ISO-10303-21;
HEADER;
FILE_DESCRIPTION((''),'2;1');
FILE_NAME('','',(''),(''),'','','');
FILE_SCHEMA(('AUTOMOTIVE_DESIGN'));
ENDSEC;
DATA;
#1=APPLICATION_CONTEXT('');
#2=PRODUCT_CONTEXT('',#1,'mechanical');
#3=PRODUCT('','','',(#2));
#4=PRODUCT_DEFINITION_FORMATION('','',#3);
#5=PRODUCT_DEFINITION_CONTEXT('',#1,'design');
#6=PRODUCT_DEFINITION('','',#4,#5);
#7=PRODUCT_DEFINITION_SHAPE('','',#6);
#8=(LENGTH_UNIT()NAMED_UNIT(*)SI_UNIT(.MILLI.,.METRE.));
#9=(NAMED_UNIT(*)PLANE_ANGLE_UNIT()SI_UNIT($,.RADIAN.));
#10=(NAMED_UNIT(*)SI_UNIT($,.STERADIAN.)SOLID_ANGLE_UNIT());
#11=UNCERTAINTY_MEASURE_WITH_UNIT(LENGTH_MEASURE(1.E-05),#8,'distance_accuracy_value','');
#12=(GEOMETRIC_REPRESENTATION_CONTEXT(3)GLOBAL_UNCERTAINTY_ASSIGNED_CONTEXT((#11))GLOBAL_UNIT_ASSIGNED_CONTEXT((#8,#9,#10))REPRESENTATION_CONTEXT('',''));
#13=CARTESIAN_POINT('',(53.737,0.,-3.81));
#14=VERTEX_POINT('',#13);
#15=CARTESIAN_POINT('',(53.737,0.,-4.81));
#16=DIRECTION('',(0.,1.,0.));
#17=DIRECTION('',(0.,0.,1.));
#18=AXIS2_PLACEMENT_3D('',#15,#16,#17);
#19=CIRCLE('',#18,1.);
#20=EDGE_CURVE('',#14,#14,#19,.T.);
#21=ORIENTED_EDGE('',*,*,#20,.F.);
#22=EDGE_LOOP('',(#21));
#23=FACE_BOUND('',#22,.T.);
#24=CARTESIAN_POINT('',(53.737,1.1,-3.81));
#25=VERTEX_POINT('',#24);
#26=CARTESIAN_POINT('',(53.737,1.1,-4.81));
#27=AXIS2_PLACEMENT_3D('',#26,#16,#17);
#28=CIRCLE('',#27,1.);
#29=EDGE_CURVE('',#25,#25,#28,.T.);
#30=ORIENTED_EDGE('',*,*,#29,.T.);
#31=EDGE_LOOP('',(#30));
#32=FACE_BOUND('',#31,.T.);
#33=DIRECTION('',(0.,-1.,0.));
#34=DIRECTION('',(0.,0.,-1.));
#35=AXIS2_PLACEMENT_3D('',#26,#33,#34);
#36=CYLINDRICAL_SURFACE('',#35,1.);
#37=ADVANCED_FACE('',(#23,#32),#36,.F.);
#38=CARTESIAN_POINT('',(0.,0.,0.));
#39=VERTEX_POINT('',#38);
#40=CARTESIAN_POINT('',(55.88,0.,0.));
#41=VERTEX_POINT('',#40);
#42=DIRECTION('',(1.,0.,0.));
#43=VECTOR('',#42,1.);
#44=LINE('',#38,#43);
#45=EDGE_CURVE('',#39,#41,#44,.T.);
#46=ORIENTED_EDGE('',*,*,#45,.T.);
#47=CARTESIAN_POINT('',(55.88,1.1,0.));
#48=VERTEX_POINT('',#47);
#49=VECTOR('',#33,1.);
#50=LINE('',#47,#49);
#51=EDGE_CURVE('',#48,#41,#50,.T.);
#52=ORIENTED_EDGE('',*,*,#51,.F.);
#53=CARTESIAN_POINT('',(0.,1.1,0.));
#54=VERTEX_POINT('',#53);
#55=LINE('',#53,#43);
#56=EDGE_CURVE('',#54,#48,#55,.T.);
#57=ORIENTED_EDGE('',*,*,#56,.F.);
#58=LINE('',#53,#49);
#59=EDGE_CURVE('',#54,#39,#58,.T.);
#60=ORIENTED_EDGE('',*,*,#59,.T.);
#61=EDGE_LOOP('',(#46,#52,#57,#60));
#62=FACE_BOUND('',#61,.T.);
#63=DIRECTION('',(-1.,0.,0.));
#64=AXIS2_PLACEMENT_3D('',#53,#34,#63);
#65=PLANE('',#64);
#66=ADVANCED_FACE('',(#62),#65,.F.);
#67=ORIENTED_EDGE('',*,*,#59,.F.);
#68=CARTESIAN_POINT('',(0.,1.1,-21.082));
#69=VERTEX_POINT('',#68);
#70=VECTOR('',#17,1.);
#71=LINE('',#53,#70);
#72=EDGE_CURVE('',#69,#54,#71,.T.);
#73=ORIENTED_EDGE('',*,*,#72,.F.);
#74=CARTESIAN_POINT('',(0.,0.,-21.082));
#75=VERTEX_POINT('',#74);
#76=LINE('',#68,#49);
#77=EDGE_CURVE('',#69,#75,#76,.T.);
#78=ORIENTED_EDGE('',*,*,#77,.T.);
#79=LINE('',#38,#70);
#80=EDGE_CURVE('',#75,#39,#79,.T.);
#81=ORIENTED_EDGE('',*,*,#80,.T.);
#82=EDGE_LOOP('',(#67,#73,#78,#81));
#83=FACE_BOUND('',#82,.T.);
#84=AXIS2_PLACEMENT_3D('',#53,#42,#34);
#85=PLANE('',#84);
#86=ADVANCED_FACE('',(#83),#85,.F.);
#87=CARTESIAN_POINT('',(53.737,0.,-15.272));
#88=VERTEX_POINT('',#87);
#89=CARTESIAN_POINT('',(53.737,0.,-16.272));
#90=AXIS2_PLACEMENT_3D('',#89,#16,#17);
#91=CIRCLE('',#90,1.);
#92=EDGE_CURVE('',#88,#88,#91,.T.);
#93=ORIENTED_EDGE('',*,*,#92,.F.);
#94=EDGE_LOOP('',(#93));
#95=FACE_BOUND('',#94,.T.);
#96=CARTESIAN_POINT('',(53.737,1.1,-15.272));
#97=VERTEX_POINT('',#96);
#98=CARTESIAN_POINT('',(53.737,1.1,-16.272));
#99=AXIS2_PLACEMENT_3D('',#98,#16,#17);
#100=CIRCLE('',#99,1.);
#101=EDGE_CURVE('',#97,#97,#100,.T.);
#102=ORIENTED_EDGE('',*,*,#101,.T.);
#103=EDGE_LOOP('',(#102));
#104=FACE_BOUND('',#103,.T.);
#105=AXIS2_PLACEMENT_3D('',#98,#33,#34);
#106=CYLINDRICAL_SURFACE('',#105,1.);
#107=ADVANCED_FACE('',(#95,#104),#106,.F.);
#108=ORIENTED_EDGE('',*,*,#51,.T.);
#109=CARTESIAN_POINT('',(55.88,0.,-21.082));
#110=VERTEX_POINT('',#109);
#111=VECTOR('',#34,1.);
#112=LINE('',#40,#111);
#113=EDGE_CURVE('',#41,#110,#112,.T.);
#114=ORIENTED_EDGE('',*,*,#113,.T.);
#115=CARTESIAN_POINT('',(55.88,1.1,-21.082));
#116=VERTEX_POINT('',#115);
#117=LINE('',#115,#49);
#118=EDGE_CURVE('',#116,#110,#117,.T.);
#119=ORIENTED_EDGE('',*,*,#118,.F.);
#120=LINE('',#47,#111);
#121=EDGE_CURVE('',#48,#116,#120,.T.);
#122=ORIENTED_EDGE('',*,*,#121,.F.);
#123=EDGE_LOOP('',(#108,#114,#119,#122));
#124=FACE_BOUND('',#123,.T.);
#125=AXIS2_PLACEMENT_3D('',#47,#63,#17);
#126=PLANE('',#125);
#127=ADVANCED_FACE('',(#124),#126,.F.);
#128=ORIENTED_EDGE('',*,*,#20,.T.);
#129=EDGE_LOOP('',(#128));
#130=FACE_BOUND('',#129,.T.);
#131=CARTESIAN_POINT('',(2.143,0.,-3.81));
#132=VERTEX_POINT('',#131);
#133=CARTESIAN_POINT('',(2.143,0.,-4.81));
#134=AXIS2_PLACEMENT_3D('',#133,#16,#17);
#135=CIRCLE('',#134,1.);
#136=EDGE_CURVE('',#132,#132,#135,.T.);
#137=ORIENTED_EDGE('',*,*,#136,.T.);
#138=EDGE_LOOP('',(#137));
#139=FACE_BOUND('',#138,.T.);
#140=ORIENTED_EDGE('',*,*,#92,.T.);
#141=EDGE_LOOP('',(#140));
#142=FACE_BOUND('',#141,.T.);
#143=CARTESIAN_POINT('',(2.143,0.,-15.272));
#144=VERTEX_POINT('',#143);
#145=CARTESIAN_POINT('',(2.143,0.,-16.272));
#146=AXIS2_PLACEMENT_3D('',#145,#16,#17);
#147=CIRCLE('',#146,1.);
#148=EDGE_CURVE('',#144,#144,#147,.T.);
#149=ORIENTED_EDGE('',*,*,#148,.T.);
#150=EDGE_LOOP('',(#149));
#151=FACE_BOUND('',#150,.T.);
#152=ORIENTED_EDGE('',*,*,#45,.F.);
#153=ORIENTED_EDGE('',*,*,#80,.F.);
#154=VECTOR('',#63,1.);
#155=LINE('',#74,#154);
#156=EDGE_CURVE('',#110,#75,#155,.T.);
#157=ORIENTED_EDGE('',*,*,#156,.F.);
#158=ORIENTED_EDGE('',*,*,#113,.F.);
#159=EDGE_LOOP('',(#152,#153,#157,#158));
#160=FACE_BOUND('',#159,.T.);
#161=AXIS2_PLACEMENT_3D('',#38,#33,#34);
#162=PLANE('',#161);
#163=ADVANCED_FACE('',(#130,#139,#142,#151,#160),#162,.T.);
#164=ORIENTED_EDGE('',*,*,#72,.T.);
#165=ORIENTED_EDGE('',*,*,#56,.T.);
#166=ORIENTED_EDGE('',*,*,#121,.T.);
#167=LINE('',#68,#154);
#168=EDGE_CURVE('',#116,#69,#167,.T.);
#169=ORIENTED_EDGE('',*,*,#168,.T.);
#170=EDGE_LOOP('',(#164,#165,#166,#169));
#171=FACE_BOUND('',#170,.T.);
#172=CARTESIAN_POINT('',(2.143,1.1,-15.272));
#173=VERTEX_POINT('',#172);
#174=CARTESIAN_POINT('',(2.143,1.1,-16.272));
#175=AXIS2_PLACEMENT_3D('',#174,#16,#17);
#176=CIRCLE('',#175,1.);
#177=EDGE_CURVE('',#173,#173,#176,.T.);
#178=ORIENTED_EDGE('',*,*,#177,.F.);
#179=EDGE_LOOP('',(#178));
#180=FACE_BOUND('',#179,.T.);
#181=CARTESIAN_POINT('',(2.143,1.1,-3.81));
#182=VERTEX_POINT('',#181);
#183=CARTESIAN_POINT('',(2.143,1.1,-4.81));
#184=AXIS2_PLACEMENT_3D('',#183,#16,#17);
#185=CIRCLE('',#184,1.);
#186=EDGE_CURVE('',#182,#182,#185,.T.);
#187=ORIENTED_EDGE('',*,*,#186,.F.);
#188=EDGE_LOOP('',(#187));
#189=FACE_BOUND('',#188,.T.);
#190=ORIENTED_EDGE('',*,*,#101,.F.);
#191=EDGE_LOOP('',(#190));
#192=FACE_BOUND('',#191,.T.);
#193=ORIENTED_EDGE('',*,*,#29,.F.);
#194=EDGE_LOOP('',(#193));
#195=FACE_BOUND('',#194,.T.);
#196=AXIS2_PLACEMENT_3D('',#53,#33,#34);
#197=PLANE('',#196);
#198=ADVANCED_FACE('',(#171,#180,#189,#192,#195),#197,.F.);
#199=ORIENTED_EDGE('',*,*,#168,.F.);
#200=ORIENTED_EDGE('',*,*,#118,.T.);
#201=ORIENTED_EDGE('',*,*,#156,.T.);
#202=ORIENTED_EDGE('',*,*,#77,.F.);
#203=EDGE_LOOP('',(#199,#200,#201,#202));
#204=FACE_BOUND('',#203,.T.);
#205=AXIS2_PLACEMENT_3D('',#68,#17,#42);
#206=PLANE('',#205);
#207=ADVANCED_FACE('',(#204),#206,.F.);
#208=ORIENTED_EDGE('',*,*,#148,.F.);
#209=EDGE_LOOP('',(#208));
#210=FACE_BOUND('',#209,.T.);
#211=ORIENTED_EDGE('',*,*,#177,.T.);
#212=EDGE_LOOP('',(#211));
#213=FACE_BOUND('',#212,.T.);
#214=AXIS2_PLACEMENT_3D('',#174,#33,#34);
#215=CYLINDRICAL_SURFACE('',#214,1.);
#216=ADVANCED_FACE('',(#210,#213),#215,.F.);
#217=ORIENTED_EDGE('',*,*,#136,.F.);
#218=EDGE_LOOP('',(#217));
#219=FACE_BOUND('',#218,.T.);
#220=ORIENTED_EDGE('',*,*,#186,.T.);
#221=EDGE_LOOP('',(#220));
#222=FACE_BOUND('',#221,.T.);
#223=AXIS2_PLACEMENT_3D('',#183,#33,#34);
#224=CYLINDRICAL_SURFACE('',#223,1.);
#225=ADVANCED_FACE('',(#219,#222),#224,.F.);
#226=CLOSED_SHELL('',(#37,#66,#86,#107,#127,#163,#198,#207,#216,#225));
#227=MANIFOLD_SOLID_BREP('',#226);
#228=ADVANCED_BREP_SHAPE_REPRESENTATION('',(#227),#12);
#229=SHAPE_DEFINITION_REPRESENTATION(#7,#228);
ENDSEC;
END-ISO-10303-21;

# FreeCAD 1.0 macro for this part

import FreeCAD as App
import Part
import Sketcher
Q = App.Units.Quantity

doc = App.newDocument("Part")
body = doc.addObject("PartDesign::Body", "Body")

sketch1 = body.newObject("Sketcher::SketchObject", "Sketch")
sketch1.AttachmentSupport = (doc.getObject("XZ_Plane"), [""])
sketch1.MapMode = "FlatFace"
sketch1.addGeometry(Part.LineSegment(App.Vector(0, -21.082, 0), App.Vector(0, 0, 0)), False)
sketch1.addGeometry(Part.LineSegment(App.Vector(0, 0, 0), App.Vector(55.88, 0, 0)), False)
sketch1.addGeometry(Part.LineSegment(App.Vector(55.88, 0, 0), App.Vector(55.88, -21.082, 0)), False)
sketch1.addGeometry(Part.LineSegment(App.Vector(55.88, -21.082, 0), App.Vector(0, -21.082, 0)), False)
sketch1.addGeometry(Part.Circle(App.Vector(2.143, -4.81, 0), App.Vector(0, 0, 1), 1), False)
sketch1.addGeometry(Part.Circle(App.Vector(53.737, -4.81, 0), App.Vector(0, 0, 1), 1), False)
sketch1.addGeometry(Part.Circle(App.Vector(2.143, -16.272, 0), App.Vector(0, 0, 1), 1), False)
sketch1.addGeometry(Part.Circle(App.Vector(53.737, -16.272, 0), App.Vector(0, 0, 1), 1), False)
sketch1.addConstraint(Sketcher.Constraint("Coincident", 0, 2, 1, 1))
sketch1.addConstraint(Sketcher.Constraint("Coincident", 1, 2, 2, 1))
sketch1.addConstraint(Sketcher.Constraint("Coincident", 2, 2, 3, 1))
sketch1.addConstraint(Sketcher.Constraint("Coincident", 3, 2, 0, 1))
sketch1.addConstraint(Sketcher.Constraint("Vertical", 0))
sketch1.addConstraint(Sketcher.Constraint("Horizontal", 1))
sketch1.addConstraint(Sketcher.Constraint("Vertical", 2))
sketch1.addConstraint(Sketcher.Constraint("Horizontal", 3))
sketch1.addConstraint(Sketcher.Constraint("Coincident", 0, 2, -1, 1))
sketch1.addConstraint(Sketcher.Constraint("Equal", 4, 5))
sketch1.addConstraint(Sketcher.Constraint("Equal", 5, 6))
sketch1.addConstraint(Sketcher.Constraint("Equal", 6, 7))
sketch1.addConstraint(Sketcher.Constraint("Horizontal", 4, 3, 5, 3))
sketch1.addConstraint(Sketcher.Constraint("Horizontal", 6, 3, 7, 3))
sketch1.addConstraint(Sketcher.Constraint("Vertical", 4, 3, 6, 3))
sketch1.addConstraint(Sketcher.Constraint("Vertical", 5, 3, 7, 3))
sketch1.addConstraint(Sketcher.Constraint("Diameter", 4, Q("2 mm")))
sketch1.addConstraint(Sketcher.Constraint("DistanceX", 1, 1, 1, 2, Q("55.88 mm")))
sketch1.addConstraint(Sketcher.Constraint("DistanceY", 0, 1, 0, 2, Q("21.082 mm")))
sketch1.addConstraint(Sketcher.Constraint("DistanceY", 4, 3, -1, 1, Q("4.81 mm")))
sketch1.addConstraint(Sketcher.Constraint("DistanceY", 2, 2, 7, 3, Q("4.81 mm")))
sketch1.addConstraint(Sketcher.Constraint("DistanceX", -1, 1, 4, 3, Q("2.143 mm")))
sketch1.addConstraint(Sketcher.Constraint("DistanceX", -1, 1, 5, 3, Q("53.737 mm")))
pad1 = body.newObject("PartDesign::Pad", "Pad")
pad1.Profile = sketch1
pad1.Length = 1.1
pad1.Reversed = True

doc.recompute()
